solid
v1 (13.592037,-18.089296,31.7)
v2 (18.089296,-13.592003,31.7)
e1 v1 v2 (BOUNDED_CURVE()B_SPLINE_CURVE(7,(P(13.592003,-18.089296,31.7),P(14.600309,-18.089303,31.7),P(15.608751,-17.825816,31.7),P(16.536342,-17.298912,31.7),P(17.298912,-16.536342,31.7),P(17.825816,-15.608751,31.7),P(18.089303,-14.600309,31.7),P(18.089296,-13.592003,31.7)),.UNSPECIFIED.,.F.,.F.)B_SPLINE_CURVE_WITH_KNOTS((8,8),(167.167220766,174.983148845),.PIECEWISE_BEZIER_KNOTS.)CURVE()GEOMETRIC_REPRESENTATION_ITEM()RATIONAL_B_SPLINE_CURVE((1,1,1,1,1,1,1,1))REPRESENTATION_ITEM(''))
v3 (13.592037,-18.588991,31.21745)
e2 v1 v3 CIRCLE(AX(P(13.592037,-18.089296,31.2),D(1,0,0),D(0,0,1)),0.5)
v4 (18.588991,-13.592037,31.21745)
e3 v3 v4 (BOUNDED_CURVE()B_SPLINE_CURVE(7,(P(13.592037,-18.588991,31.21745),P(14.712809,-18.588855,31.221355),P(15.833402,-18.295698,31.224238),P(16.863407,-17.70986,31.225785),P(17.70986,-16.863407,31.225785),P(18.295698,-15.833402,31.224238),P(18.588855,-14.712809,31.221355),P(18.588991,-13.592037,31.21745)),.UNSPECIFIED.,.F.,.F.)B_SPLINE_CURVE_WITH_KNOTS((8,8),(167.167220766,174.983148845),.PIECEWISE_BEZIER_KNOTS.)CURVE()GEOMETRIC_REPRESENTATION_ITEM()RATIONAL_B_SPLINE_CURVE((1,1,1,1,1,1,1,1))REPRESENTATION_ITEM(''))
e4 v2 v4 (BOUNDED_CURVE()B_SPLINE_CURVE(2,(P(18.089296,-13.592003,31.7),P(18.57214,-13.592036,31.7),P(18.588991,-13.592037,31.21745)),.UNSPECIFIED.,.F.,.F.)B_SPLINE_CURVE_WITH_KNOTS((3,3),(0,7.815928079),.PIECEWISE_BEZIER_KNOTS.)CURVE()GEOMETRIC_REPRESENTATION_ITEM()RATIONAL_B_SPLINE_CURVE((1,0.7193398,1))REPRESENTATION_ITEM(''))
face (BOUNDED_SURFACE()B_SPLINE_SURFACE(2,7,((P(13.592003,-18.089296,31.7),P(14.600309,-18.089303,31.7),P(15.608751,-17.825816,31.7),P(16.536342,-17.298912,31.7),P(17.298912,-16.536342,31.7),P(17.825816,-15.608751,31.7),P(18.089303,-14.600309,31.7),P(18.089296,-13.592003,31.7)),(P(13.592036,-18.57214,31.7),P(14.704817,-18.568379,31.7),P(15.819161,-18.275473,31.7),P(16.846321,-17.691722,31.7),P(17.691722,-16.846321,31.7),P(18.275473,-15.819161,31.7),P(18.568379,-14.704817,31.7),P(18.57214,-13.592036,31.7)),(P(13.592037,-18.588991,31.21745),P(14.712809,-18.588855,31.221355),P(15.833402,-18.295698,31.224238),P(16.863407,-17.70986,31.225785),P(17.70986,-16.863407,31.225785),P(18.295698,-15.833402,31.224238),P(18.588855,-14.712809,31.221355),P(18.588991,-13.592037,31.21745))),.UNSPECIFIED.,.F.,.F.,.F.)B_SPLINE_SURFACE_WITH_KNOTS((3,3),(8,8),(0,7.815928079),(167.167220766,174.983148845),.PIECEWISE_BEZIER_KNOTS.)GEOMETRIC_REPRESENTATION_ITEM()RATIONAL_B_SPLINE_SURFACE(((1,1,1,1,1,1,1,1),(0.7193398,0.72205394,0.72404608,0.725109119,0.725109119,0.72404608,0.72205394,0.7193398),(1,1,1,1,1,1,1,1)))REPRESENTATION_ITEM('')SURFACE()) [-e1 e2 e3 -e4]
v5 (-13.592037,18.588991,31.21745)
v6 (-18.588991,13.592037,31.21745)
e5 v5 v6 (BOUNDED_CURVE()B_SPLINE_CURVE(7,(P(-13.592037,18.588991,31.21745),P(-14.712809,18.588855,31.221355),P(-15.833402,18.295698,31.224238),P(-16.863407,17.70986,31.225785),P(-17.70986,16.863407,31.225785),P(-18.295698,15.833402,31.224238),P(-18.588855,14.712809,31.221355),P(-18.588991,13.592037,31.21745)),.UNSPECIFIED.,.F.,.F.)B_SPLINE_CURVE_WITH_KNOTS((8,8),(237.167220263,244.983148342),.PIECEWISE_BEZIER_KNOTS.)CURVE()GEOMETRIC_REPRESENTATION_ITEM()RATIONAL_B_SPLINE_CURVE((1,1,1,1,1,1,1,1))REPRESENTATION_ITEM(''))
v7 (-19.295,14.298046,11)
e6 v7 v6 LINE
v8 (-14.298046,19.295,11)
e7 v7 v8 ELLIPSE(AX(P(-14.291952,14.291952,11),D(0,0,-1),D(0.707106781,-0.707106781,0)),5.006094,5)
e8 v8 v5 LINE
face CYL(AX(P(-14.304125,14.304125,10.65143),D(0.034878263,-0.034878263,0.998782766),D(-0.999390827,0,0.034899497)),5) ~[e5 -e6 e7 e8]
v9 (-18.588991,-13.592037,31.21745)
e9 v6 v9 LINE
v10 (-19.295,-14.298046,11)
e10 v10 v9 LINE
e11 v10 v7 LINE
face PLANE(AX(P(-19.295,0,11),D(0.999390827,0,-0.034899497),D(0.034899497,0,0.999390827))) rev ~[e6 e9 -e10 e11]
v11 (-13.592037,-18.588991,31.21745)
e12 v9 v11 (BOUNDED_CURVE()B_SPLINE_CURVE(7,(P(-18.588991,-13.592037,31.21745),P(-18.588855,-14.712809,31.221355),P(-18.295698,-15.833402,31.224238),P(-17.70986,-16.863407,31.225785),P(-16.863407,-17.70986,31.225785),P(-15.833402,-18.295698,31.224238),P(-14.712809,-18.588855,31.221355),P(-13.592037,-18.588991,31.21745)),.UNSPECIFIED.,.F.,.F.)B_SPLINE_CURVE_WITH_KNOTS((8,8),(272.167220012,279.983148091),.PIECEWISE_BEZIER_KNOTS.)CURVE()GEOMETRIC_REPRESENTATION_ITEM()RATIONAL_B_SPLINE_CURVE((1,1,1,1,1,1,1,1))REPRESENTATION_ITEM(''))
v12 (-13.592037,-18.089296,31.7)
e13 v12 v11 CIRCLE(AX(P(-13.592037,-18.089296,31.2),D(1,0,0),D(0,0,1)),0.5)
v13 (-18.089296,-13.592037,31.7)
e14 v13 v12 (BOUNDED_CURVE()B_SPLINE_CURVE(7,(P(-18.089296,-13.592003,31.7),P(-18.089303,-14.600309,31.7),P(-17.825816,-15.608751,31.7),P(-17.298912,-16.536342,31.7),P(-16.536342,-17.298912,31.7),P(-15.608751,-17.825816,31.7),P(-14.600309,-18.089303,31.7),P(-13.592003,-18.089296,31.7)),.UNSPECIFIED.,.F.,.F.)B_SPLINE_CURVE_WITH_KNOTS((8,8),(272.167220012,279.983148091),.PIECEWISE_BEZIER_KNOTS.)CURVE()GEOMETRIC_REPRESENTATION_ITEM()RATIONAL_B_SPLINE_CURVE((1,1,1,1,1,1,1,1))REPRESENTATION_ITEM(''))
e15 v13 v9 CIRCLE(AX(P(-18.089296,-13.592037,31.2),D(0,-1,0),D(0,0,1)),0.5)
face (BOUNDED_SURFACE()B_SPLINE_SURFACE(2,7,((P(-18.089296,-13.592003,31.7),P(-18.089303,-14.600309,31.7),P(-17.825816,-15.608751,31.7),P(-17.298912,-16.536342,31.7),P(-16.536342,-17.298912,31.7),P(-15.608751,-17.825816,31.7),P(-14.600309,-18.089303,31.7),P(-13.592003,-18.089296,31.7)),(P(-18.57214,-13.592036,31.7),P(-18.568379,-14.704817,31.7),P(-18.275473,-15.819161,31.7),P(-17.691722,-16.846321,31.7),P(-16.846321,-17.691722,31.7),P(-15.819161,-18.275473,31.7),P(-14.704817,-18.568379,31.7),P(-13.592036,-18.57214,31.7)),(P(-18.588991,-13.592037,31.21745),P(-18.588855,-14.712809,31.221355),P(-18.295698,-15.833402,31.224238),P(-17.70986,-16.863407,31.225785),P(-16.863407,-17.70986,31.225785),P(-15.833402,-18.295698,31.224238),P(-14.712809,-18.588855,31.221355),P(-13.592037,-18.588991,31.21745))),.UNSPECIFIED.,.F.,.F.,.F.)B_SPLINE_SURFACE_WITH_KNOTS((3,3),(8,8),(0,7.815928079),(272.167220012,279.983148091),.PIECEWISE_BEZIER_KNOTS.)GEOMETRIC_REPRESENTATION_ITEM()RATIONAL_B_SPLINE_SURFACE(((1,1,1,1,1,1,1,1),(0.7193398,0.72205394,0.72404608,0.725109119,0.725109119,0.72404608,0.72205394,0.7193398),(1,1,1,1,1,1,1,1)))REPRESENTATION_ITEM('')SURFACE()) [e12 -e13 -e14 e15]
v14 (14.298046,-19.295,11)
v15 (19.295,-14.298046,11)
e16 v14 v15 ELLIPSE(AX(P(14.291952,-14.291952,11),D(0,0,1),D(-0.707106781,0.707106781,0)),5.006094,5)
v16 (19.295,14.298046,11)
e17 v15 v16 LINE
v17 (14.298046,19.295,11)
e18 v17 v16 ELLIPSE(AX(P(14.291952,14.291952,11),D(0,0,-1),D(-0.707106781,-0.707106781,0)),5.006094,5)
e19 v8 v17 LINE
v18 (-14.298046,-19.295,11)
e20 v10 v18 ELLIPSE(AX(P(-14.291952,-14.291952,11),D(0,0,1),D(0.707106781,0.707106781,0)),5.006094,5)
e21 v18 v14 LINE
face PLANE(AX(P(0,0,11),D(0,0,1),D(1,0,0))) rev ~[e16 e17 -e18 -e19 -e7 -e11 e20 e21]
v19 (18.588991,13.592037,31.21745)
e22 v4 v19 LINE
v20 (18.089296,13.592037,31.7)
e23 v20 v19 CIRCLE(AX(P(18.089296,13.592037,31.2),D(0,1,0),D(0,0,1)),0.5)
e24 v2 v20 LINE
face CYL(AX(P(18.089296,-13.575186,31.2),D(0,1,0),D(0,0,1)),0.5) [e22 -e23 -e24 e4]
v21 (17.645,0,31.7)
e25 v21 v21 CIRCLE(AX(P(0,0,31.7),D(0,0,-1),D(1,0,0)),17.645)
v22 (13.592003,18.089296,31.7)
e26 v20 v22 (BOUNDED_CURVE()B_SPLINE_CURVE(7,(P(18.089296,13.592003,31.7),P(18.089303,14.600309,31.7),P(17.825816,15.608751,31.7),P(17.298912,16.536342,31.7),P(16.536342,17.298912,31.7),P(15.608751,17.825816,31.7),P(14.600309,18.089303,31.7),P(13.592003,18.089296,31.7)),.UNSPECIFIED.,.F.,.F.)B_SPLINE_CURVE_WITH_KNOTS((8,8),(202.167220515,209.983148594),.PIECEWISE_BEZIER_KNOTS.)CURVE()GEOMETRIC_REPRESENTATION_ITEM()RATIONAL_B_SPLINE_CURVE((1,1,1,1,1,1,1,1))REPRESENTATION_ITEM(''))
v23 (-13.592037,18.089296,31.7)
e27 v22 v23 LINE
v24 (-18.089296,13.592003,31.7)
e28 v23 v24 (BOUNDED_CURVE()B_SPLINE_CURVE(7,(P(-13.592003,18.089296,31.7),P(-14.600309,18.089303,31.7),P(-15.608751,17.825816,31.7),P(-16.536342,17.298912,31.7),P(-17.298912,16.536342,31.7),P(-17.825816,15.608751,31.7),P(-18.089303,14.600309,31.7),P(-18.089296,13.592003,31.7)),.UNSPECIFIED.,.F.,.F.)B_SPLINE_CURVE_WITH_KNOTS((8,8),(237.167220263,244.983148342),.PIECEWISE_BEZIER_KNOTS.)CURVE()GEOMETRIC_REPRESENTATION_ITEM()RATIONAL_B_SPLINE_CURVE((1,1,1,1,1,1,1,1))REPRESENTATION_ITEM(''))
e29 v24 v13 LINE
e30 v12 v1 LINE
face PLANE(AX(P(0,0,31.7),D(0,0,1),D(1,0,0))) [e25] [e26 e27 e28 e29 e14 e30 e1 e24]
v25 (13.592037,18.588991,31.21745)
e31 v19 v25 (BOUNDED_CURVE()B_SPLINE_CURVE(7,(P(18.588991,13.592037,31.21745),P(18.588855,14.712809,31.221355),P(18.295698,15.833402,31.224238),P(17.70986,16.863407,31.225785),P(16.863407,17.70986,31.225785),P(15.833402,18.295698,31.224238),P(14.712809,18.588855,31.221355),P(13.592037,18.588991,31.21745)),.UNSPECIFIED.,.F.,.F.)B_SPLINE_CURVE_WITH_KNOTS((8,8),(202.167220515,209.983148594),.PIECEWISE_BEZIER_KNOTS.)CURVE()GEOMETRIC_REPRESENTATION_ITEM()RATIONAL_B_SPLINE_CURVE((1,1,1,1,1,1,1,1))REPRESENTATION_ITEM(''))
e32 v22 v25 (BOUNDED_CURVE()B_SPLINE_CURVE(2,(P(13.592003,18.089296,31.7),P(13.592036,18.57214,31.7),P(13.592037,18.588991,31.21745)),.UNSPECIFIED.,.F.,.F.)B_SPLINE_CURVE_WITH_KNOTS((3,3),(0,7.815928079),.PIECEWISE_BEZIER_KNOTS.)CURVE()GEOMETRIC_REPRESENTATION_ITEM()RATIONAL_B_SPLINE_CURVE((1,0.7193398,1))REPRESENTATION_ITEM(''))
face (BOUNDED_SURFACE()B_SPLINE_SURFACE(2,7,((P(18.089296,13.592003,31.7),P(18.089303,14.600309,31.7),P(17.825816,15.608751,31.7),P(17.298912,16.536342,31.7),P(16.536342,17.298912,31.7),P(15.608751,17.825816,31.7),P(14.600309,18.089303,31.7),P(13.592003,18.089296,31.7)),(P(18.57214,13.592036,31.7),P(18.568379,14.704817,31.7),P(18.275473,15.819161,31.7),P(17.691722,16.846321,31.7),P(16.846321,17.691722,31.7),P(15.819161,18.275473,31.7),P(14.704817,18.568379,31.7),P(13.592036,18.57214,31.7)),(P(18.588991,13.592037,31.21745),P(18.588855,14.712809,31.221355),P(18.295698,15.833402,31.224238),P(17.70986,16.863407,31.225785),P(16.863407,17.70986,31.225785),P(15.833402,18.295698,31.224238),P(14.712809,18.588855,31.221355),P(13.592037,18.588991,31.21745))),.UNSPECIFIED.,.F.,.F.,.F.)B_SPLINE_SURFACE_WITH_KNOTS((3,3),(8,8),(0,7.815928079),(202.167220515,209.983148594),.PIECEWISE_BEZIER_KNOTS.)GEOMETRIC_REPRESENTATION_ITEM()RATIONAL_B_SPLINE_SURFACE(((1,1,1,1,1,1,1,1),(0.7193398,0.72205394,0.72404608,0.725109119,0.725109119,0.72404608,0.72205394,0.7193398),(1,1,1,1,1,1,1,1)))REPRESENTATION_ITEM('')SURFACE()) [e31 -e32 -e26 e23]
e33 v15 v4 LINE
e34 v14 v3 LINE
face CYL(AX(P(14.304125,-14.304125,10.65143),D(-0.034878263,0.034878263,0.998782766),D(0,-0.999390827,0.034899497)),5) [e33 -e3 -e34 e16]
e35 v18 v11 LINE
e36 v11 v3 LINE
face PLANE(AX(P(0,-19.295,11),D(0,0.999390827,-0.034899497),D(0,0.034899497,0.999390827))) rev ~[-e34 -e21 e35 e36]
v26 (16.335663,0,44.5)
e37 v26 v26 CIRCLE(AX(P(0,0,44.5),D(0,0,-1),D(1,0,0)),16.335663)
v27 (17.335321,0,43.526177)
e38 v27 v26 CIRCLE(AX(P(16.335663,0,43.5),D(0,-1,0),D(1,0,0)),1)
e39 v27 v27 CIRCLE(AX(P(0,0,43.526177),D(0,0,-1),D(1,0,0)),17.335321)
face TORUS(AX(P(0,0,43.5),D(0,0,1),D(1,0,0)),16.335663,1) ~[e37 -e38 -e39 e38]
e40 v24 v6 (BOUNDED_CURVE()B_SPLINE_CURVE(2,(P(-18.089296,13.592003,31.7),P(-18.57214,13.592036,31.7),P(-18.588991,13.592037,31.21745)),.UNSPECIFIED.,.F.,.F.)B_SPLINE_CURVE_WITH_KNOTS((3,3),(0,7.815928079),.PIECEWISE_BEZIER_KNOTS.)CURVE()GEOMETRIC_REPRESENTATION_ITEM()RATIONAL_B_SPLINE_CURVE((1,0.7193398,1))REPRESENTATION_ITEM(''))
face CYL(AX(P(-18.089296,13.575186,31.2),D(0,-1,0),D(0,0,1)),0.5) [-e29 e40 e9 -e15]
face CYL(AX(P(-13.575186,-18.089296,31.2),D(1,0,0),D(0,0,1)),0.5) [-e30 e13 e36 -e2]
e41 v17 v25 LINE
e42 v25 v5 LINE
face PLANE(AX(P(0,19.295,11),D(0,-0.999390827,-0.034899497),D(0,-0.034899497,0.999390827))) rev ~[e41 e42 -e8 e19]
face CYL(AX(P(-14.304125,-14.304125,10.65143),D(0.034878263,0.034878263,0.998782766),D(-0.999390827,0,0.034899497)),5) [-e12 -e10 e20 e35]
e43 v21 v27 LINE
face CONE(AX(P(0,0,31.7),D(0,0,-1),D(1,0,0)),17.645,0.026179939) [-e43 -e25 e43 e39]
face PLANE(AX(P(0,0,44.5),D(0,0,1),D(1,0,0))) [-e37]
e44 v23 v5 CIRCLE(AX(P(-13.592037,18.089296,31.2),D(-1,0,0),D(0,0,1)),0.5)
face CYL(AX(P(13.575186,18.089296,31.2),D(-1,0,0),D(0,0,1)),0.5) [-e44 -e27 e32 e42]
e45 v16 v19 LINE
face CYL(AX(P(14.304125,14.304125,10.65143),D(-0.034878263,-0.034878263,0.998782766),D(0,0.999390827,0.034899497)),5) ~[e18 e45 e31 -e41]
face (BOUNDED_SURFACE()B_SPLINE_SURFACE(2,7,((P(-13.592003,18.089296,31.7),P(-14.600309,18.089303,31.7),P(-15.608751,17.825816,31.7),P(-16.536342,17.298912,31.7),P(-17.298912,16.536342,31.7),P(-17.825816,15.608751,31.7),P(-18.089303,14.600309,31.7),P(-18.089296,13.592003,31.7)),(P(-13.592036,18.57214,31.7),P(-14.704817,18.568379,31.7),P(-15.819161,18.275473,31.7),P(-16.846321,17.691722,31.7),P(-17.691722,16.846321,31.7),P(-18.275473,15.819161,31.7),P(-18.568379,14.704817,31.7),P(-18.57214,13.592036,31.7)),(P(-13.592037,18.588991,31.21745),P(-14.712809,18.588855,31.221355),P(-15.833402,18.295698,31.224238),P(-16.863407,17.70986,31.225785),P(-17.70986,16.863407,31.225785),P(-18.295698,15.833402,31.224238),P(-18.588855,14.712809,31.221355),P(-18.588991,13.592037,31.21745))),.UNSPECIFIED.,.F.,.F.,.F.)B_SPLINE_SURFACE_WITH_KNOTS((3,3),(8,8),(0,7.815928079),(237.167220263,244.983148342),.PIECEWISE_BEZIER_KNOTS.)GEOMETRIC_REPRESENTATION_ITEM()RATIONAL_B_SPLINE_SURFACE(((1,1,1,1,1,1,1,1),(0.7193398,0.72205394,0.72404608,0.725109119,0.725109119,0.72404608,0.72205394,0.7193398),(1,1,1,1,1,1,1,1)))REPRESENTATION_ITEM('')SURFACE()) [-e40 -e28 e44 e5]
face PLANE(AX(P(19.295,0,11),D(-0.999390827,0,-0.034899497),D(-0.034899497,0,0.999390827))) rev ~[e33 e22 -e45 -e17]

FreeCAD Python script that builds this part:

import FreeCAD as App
import Part
import Sketcher
Q = App.Units.Quantity


def edges_at(feature, points):
    """Names of the edges that pass closest to the given points."""
    edges = feature.Shape.Edges
    near = lambda p: min(range(len(edges)), key=lambda i: edges[i].distToShape(Part.Vertex(*p))[0])
    return sorted({f"Edge{near(p) + 1}" for p in points})


def add_polygon(sketch, points):
    """Adds a closed chain of lines whose ends are joined by coincident constraints."""
    first, n = sketch.GeometryCount, len(points)
    for a, b in zip(points, points[1:] + points[:1]):
        sketch.addGeometry(Part.LineSegment(App.Vector(*a, 0), App.Vector(*b, 0)), False)
    for i in range(n):
        sketch.addConstraint(Sketcher.Constraint("Coincident", first + i, 2, first + (i + 1) % n, 1))

doc = App.newDocument("Part")
body = doc.addObject("PartDesign::Body", "Body")

# Sketch on XY plane
sketch1 = body.newObject("Sketcher::SketchObject", "Sketch")
sketch1.AttachmentSupport = (doc.getObject("XY_Plane"), [""])
sketch1.MapMode = "FlatFace"
add_polygon(sketch1, [(-19.295, 19.295), (-19.295, -19.295), (19.295, -19.295), (19.295, 19.295)])  # lines 0-3
sketch1.addConstraint(Sketcher.Constraint("Vertical", 0))
sketch1.addConstraint(Sketcher.Constraint("Horizontal", 1))
sketch1.addConstraint(Sketcher.Constraint("Vertical", 2))
sketch1.addConstraint(Sketcher.Constraint("Horizontal", 3))
sketch1.addConstraint(Sketcher.Constraint("Symmetric", 0, 2, 2, 2, -1, 1))
sketch1.addConstraint(Sketcher.Constraint("Equal", 3, 0))
sketch1.addConstraint(Sketcher.Constraint("DistanceX", 1, 1, 1, 2, Q("38.59 mm")))
pad1 = body.newObject("PartDesign::Pad", "Pad")
pad1.Profile = sketch1
pad1.Length = 20.7
pad1.TaperAngle = -2

# Sketch on XY plane
sketch2 = body.newObject("Sketcher::SketchObject", "Sketch001")
sketch2.AttachmentSupport = (doc.getObject("XY_Plane"), [""])
sketch2.MapMode = "FlatFace"
sketch2.AttachmentOffset = App.Placement(App.Vector(0, 0, 20.7), App.Rotation())
sketch2.addGeometry(Part.Circle(App.Vector(0, 0, 0), App.Vector(0, 0, 1), 17.645), False)
sketch2.addConstraint(Sketcher.Constraint("Coincident", 0, 3, -1, 1))
sketch2.addConstraint(Sketcher.Constraint("Diameter", 0, Q("35.29 mm")))
pad2 = body.newObject("PartDesign::Pad", "Pad001")
pad2.Profile = sketch2
pad2.Length = 12.8
pad2.TaperAngle = -1.5
doc.recompute()

fillet = body.newObject("PartDesign::Fillet", "Fillet")
fillet.Base = (pad2, edges_at(pad2, [(-17.31, 0, 33.5)]))
fillet.Radius = 1
doc.recompute()

fillet2 = body.newObject("PartDesign::Fillet", "Fillet001")
fillet2.Base = (fillet, edges_at(fillet, [
    (18.934, -18.934, 10.35),
    (18.934, 18.934, 10.35),
    (-18.934, 18.934, 10.35),
    (-18.934, -18.934, 10.35),
]))
fillet2.Radius = 5
doc.recompute()

fillet3 = body.newObject("PartDesign::Fillet", "Fillet002")
fillet3.Base = (fillet2, edges_at(fillet2, [
    (0, -18.572, 20.7),
    (-17.109, -17.109, 20.7),
    (-18.572, 0, 20.7),
    (18.572, 0, 20.7),
    (17.109, 17.109, 20.7),
    (0, 18.572, 20.7),
    (17.109, -17.109, 20.7),
    (-17.109, 17.109, 20.7),
]))
fillet3.Radius = 0.5
body2 = doc.addObject("PartDesign::Body", "Body001")
doc.recompute()

body.Placement = App.Placement(App.Vector(0, 0, 11), App.Rotation(App.Vector(0, 0, 1), 0))
boolean = body2.newObject("PartDesign::Boolean", "Boolean")
boolean.Type = "Fuse"
boolean.addObjects([body])

doc.recompute()
